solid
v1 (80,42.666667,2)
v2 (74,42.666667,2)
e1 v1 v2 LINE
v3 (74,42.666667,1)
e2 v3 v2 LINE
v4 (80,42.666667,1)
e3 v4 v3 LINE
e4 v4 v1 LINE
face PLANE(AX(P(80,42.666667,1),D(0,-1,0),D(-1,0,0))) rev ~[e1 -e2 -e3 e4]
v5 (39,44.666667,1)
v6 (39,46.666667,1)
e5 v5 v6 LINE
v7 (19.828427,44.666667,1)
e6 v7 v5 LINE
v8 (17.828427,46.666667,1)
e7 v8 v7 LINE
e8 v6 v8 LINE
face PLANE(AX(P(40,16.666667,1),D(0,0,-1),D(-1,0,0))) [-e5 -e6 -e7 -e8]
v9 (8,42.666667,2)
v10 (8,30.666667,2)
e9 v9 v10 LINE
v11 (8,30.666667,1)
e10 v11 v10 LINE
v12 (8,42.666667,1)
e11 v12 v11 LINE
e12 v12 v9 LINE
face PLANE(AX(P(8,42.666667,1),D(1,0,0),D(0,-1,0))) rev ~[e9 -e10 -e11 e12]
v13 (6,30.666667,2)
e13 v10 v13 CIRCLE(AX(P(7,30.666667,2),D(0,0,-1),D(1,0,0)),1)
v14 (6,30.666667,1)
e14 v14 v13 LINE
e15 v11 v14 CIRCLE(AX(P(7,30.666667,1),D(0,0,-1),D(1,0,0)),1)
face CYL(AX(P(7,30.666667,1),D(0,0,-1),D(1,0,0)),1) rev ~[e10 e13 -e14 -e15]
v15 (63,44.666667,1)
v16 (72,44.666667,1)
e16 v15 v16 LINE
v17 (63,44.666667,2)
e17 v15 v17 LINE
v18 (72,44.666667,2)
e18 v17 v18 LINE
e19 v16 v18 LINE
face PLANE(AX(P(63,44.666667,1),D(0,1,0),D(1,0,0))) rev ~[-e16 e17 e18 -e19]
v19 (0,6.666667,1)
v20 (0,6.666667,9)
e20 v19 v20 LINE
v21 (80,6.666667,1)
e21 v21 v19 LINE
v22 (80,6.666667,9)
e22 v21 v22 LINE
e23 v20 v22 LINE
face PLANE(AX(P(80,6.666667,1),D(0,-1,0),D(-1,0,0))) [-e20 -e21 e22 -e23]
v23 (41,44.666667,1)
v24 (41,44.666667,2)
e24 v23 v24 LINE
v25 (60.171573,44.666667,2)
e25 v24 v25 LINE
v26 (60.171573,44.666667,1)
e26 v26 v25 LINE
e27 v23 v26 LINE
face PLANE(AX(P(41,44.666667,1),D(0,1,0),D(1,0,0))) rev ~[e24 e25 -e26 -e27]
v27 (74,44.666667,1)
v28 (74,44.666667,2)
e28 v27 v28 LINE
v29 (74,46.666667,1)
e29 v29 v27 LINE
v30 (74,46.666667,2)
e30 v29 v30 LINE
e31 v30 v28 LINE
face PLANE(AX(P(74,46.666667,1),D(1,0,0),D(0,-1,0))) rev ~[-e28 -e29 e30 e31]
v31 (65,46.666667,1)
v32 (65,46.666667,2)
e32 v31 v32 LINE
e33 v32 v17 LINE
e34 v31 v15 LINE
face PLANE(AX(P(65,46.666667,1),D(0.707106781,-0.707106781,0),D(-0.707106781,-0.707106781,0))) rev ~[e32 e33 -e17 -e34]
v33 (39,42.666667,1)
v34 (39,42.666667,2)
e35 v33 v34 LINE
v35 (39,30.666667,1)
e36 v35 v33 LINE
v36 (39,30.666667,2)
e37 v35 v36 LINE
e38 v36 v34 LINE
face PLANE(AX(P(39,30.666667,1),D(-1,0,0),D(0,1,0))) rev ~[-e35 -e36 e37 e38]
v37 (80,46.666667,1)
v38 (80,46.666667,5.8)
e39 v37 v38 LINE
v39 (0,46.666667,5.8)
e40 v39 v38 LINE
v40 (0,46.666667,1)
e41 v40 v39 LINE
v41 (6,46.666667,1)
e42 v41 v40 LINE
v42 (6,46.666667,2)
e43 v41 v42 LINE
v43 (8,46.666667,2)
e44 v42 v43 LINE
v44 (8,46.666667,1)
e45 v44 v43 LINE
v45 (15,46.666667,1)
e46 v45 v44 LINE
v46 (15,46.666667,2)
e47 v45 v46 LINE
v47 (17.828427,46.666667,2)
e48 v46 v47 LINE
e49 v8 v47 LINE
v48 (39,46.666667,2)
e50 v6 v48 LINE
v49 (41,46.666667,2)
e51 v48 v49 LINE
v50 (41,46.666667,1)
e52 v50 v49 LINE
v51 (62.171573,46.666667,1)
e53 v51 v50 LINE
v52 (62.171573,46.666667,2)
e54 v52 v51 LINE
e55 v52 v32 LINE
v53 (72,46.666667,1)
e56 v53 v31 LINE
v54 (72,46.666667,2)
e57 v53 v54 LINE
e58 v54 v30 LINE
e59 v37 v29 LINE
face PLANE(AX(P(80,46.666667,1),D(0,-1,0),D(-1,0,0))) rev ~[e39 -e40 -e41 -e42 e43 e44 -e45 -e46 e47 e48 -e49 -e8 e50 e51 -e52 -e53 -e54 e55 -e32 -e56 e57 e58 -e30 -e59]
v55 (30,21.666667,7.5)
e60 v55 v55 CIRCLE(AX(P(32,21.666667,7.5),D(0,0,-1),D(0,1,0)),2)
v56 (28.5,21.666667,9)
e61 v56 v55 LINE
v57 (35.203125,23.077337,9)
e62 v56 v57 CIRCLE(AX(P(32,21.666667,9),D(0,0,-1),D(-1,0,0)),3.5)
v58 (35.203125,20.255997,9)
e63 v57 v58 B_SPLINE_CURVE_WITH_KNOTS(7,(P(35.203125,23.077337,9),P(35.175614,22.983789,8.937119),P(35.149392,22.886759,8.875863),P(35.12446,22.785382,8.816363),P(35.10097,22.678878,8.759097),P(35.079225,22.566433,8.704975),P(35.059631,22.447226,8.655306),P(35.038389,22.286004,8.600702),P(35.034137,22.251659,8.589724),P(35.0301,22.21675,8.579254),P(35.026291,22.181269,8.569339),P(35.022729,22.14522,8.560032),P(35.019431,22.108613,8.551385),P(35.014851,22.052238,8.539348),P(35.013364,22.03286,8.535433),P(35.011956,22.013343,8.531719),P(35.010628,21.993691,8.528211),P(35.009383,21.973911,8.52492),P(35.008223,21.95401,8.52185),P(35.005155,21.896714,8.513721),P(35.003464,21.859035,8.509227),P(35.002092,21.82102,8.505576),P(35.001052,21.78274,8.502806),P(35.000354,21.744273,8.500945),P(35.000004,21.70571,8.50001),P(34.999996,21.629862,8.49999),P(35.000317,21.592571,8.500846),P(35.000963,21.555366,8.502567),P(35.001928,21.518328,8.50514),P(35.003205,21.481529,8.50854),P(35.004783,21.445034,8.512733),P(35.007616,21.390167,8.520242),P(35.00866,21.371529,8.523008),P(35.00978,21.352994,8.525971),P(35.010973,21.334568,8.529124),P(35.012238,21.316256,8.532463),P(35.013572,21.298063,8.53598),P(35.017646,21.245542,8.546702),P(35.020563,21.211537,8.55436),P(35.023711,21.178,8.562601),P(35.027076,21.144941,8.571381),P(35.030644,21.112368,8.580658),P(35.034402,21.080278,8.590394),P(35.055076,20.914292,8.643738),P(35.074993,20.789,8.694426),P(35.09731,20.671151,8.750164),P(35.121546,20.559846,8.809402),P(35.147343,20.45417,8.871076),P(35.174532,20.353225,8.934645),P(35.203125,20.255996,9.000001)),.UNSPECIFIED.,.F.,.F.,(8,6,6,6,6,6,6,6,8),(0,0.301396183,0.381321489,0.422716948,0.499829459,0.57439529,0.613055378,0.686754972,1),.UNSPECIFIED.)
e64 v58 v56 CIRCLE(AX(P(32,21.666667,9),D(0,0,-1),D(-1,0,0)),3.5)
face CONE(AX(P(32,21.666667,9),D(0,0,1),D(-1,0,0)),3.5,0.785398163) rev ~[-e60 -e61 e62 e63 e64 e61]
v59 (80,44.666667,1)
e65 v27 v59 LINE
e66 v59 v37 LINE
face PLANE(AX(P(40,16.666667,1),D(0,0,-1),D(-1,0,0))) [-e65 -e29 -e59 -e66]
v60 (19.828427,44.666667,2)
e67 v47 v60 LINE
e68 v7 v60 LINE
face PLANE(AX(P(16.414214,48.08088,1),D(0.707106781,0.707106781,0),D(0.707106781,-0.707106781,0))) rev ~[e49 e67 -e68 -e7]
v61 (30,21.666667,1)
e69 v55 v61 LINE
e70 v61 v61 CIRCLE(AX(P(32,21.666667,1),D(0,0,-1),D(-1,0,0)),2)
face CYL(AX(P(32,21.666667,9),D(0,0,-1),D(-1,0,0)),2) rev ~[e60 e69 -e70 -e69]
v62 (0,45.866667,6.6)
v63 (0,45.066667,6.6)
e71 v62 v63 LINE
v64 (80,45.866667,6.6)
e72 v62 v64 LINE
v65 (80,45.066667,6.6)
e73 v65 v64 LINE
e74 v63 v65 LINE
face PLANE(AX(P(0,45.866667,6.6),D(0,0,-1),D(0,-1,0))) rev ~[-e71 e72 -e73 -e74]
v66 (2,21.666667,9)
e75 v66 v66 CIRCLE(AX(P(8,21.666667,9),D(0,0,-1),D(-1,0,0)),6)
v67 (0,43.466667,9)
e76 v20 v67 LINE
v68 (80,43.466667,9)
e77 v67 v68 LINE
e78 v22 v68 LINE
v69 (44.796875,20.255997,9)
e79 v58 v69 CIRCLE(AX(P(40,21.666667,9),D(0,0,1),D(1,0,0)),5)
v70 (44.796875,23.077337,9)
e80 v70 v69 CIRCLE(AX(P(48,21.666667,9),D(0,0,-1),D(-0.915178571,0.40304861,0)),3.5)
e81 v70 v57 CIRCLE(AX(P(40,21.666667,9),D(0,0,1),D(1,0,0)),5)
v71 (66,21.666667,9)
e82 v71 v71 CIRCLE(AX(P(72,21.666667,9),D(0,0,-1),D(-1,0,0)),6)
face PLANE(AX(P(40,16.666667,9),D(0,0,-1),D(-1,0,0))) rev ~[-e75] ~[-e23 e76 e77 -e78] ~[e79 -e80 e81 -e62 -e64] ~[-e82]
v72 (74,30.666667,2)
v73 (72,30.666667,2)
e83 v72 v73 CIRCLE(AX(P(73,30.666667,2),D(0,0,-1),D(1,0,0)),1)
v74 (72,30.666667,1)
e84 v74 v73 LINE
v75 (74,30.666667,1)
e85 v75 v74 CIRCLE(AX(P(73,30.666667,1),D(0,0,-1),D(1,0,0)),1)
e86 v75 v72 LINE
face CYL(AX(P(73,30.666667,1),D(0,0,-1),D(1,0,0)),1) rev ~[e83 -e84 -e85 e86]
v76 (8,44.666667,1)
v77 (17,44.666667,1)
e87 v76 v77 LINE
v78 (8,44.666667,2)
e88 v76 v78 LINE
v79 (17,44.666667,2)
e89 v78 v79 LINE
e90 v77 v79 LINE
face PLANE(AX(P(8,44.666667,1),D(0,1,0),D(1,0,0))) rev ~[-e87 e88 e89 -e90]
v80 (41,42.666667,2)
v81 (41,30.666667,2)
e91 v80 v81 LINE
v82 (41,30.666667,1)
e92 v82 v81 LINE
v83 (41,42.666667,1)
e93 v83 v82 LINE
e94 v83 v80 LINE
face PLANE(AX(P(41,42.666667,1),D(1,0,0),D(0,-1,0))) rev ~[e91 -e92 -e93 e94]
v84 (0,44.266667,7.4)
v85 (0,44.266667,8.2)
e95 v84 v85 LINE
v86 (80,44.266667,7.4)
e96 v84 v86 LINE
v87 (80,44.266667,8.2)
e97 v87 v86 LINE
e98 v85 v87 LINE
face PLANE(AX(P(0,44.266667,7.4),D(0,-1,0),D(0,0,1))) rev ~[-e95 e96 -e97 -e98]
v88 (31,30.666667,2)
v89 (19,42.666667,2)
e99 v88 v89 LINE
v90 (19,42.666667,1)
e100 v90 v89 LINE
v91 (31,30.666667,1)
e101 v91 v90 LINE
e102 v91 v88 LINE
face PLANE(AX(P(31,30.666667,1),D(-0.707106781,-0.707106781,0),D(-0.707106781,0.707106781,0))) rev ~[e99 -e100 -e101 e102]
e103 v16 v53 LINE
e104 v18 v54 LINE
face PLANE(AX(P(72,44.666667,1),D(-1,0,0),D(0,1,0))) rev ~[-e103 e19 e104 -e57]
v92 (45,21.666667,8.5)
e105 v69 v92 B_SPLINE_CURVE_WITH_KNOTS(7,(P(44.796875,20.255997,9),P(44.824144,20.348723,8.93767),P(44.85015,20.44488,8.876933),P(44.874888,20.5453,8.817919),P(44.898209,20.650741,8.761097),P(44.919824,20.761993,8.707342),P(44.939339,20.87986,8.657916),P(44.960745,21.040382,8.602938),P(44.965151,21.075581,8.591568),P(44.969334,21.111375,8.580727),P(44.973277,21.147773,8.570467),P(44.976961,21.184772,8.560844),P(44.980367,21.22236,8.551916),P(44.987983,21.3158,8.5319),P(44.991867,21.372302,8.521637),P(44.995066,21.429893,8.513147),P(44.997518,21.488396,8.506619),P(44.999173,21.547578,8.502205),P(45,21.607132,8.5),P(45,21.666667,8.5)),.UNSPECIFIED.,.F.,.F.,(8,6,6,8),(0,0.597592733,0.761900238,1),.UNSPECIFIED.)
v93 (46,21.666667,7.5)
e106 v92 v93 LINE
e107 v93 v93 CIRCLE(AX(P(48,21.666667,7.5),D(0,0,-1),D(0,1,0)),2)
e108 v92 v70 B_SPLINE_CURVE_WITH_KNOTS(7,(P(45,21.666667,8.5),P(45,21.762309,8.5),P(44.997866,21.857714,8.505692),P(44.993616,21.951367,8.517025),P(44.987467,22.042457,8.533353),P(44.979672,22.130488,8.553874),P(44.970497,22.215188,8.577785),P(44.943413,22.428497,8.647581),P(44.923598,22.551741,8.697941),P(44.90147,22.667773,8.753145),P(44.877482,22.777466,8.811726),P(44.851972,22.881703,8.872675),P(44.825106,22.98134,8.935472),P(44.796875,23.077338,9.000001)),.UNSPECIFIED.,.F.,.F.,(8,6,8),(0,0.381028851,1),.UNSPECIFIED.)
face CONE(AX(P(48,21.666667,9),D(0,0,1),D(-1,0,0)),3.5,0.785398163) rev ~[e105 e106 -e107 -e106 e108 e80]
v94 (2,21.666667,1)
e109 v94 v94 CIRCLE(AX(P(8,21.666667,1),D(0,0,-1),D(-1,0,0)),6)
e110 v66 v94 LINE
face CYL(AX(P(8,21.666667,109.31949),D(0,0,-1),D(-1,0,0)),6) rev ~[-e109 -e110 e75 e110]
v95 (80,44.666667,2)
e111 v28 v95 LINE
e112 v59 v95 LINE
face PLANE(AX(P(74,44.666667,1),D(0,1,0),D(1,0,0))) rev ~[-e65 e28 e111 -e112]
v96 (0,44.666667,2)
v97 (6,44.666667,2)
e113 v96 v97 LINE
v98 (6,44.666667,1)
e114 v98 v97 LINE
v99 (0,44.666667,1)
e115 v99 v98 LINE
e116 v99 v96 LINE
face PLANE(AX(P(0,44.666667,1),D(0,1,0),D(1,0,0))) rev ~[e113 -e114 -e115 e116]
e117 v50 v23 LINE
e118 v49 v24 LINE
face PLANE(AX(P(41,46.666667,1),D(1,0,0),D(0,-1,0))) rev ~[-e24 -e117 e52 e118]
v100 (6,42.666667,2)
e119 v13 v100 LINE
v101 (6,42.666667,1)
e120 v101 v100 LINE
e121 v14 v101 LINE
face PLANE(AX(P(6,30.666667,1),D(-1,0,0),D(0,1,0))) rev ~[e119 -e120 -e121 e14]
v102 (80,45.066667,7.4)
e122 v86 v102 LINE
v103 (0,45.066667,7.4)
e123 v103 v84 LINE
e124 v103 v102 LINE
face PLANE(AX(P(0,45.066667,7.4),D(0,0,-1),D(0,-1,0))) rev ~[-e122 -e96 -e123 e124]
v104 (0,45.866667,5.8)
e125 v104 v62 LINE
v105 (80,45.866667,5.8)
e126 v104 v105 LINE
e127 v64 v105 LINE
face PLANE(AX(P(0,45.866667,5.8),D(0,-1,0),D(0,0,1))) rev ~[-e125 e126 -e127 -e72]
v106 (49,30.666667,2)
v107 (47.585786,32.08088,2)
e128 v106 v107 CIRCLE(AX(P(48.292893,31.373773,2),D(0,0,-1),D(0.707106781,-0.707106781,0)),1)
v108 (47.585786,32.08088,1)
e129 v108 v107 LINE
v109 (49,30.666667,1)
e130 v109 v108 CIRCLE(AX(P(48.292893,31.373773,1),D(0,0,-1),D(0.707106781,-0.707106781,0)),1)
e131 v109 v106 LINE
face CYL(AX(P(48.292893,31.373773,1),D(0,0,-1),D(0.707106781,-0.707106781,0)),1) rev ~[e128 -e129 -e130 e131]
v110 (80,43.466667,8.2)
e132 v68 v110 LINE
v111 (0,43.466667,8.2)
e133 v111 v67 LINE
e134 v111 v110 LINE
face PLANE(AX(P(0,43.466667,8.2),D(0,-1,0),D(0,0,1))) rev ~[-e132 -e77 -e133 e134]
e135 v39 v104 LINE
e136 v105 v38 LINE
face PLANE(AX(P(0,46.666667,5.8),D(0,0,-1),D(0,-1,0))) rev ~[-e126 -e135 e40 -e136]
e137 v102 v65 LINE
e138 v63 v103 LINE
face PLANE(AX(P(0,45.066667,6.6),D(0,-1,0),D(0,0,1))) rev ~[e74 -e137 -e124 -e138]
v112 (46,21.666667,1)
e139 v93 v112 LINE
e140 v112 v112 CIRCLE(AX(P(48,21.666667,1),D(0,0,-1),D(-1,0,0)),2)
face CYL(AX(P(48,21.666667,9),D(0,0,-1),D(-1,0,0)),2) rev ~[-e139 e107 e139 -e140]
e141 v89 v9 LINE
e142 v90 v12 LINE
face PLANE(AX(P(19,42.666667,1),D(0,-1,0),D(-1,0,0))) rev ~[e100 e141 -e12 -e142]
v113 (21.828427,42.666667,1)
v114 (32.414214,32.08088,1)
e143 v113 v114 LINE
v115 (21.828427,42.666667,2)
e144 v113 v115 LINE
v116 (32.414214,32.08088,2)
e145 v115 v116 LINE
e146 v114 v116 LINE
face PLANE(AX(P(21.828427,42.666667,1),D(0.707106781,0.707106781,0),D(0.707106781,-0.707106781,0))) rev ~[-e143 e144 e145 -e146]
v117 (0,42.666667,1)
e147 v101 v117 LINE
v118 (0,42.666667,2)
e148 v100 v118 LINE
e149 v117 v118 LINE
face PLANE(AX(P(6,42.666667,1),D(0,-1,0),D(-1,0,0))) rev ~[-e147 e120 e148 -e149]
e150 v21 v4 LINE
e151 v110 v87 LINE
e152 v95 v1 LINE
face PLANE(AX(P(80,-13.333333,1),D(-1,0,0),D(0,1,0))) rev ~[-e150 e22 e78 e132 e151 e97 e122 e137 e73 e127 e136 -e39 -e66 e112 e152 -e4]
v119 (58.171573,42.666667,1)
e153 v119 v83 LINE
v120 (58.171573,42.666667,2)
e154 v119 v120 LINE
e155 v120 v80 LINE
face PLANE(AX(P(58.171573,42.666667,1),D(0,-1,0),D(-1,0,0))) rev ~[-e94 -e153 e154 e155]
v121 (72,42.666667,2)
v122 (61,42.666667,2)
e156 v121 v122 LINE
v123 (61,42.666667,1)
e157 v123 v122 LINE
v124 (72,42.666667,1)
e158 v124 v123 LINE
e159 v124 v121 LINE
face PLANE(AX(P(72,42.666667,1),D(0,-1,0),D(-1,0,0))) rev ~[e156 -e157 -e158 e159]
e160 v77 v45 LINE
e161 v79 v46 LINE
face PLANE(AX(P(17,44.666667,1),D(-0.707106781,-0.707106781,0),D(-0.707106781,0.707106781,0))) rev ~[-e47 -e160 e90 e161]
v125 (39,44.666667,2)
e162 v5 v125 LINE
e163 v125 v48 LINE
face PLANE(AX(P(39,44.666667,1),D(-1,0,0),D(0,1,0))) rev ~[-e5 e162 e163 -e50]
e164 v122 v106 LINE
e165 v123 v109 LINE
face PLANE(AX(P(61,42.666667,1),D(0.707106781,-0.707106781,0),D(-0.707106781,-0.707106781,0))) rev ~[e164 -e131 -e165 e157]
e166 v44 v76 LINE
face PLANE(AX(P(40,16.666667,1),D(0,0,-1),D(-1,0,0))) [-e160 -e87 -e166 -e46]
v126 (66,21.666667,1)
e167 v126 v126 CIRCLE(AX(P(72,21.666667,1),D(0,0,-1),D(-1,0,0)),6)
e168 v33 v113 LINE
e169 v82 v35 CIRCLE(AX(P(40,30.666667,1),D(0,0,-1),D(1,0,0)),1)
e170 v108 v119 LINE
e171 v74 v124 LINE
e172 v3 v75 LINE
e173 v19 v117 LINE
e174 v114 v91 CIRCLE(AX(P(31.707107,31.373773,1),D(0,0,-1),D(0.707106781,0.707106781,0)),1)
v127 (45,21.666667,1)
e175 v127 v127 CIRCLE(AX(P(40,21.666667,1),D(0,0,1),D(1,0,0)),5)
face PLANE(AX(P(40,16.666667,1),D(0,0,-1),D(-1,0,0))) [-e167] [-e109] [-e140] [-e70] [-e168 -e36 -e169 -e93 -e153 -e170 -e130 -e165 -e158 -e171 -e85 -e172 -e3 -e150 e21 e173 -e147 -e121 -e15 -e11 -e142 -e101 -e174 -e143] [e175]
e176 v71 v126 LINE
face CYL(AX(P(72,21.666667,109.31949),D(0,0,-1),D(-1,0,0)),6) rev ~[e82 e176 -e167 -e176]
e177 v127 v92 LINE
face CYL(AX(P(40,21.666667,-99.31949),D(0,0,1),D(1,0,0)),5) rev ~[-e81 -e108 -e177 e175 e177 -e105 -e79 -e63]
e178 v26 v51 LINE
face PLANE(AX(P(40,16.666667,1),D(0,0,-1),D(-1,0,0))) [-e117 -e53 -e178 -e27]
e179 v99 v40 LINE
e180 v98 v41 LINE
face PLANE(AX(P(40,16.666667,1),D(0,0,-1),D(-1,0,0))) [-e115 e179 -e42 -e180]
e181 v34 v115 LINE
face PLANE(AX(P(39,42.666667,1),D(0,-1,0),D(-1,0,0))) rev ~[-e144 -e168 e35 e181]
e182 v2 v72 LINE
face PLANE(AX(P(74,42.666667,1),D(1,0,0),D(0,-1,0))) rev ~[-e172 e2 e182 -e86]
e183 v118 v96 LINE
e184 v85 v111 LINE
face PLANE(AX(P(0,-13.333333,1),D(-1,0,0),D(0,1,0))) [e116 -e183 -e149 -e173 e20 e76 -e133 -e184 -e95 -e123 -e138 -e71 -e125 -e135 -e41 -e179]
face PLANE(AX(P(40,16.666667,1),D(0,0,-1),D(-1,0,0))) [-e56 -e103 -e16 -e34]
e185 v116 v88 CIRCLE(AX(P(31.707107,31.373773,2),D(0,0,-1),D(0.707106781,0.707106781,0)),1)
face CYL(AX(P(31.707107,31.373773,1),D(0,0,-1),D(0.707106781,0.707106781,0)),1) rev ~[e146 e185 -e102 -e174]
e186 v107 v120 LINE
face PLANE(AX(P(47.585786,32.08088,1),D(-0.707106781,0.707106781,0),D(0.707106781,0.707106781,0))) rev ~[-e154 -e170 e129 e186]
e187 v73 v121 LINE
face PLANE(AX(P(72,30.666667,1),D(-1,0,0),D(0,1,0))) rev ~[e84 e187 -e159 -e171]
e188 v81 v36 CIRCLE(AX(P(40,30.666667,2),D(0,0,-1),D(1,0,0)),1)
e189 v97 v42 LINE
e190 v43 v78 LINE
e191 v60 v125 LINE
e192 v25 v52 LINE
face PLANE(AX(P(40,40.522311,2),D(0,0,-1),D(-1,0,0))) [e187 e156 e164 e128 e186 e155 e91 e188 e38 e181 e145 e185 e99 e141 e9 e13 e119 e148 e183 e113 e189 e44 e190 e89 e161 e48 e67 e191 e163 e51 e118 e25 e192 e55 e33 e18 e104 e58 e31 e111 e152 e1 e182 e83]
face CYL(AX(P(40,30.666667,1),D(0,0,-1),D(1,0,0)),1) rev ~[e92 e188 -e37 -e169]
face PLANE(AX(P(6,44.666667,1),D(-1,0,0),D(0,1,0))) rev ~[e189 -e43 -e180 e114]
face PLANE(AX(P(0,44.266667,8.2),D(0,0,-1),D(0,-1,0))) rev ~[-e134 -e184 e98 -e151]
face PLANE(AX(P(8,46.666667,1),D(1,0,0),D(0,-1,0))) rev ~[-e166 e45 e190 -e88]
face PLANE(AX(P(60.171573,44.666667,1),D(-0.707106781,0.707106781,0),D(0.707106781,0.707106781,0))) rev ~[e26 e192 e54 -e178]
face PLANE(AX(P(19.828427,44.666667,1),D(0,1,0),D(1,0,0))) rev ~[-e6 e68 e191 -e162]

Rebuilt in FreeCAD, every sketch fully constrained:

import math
import FreeCAD as App
import Part
import Sketcher

V = App.Vector
Q = App.Units.Quantity

doc = App.newDocument("Part")
body = doc.addObject("PartDesign::Body", "Body")

# Sketch on XY plane
sketch1 = doc.addObject("Sketcher::SketchObject", "Sketch")
body.addObject(sketch1)
sketch1.AttachmentSupport = (doc.XY_Plane, [""])
sketch1.MapMode = "FlatFace"
sketch1.AttachmentOffset = App.Placement(V(0, 0, 1), App.Rotation())
sketch1.addGeometry(Part.LineSegment(V(80, 47, 0), V(80, -13, 0)), False)
sketch1.addGeometry(Part.LineSegment(V(80, -13, 0), V(0, -13, 0)), False)
sketch1.addGeometry(Part.LineSegment(V(0, -13, 0), V(0, 47, 0)), False)
sketch1.addGeometry(Part.LineSegment(V(0, 47, 0), V(80, 47, 0)), False)
sketch1.addConstraint(Sketcher.Constraint("Coincident", 0, 2, 1, 1))
sketch1.addConstraint(Sketcher.Constraint("Coincident", 1, 2, 2, 1))
sketch1.addConstraint(Sketcher.Constraint("Coincident", 2, 2, 3, 1))
sketch1.addConstraint(Sketcher.Constraint("Coincident", 3, 2, 0, 1))
sketch1.addConstraint(Sketcher.Constraint("Vertical", 0))
sketch1.addConstraint(Sketcher.Constraint("Horizontal", 1))
sketch1.addConstraint(Sketcher.Constraint("Vertical", 2))
sketch1.addConstraint(Sketcher.Constraint("Horizontal", 3))
sketch1.addConstraint(Sketcher.Constraint("PointOnObject", 1, 2, -2))
sketch1.addConstraint(Sketcher.Constraint("DistanceX", 1, 2, 1, 1, Q("80 mm")))
sketch1.addConstraint(Sketcher.Constraint("DistanceY", 0, 2, 0, 1, Q("60 mm")))
sketch1.addConstraint(Sketcher.Constraint("DistanceY", 0, 2, -1, 1, Q("13.333333 mm")))
pad1 = doc.addObject("PartDesign::Pad", "Pad")
body.addObject(pad1)
pad1.Profile = sketch1
pad1.Length = 8

# Sketch on XY plane
sketch2 = doc.addObject("Sketcher::SketchObject", "Sketch001")
body.addObject(sketch2)
sketch2.AttachmentSupport = (doc.XY_Plane, [""])
sketch2.MapMode = "FlatFace"
sketch2.AttachmentOffset = App.Placement(V(0, 0, 9), App.Rotation())
sketch2.addGeometry(Part.Circle(V(72, 22, 0), V(0, 0, 1), 6), False)
sketch2.addGeometry(Part.Circle(V(8, 22, 0), V(0, 0, 1), 6), False)
sketch2.addConstraint(Sketcher.Constraint("Equal", 0, 1))
sketch2.addConstraint(Sketcher.Constraint("Horizontal", 0, 3, 1, 3))
sketch2.addConstraint(Sketcher.Constraint("Diameter", 0, Q("12 mm")))
sketch2.addConstraint(Sketcher.Constraint("DistanceX", -1, 1, 0, 3, Q("72 mm")))
sketch2.addConstraint(Sketcher.Constraint("DistanceX", -1, 1, 1, 3, Q("8 mm")))
sketch2.addConstraint(Sketcher.Constraint("DistanceY", -1, 1, 0, 3, Q("21.666667 mm")))
doc.recompute()
hole = doc.addObject("PartDesign::Hole", "Hole")
body.addObject(hole)
hole.Profile = sketch2
hole.ThreadType = "None"
hole.Diameter = 12
hole.DepthType = "ThroughAll"

# Sketch on XY plane
sketch3 = doc.addObject("Sketcher::SketchObject", "Sketch002")
body.addObject(sketch3)
sketch3.AttachmentSupport = (doc.XY_Plane, [""])
sketch3.MapMode = "FlatFace"
sketch3.AttachmentOffset = App.Placement(V(0, 0, 1), App.Rotation())
sketch3.addGeometry(Part.Circle(V(40, 22, 0), V(0, 0, 1), 5), False)
sketch3.addConstraint(Sketcher.Constraint("Diameter", 0, Q("10 mm")))
sketch3.addConstraint(Sketcher.Constraint("DistanceX", -1, 1, 0, 3, Q("40 mm")))
sketch3.addConstraint(Sketcher.Constraint("DistanceY", -1, 1, 0, 3, Q("21.666667 mm")))
doc.recompute()
hole2 = doc.addObject("PartDesign::Hole", "Hole001")
body.addObject(hole2)
hole2.Profile = sketch3
hole2.ThreadType = "None"
hole2.Diameter = 10
hole2.DepthType = "ThroughAll"
hole2.Reversed = True

# Sketch on XY plane
sketch4 = doc.addObject("Sketcher::SketchObject", "Sketch003")
body.addObject(sketch4)
sketch4.AttachmentSupport = (doc.XY_Plane, [""])
sketch4.MapMode = "FlatFace"
sketch4.AttachmentOffset = App.Placement(V(0, 0, 9), App.Rotation())
sketch4.addGeometry(Part.Circle(V(32, 21.7, 0), V(0, 0, 1), 2), False)
sketch4.addGeometry(Part.Circle(V(48, 21.7, 0), V(0, 0, 1), 2), False)
sketch4.addConstraint(Sketcher.Constraint("Equal", 0, 1))
sketch4.addConstraint(Sketcher.Constraint("Horizontal", 0, 3, 1, 3))
sketch4.addConstraint(Sketcher.Constraint("Diameter", 0, Q("4 mm")))
sketch4.addConstraint(Sketcher.Constraint("DistanceX", -1, 1, 0, 3, Q("32 mm")))
sketch4.addConstraint(Sketcher.Constraint("DistanceX", -1, 1, 1, 3, Q("48 mm")))
sketch4.addConstraint(Sketcher.Constraint("DistanceY", -1, 1, 0, 3, Q("21.666667 mm")))
doc.recompute()
hole3 = doc.addObject("PartDesign::Hole", "Hole002")
body.addObject(hole3)
hole3.Profile = sketch4
hole3.ThreadType = "None"
hole3.Diameter = 4
hole3.DepthType = "ThroughAll"
hole3.HoleCutType = "Countersink"
hole3.HoleCutDiameter = 7
hole3.HoleCutCountersinkAngle = 90

# Sketch on XY plane
sketch5 = doc.addObject("Sketcher::SketchObject", "Sketch004")
body.addObject(sketch5)
sketch5.AttachmentSupport = (doc.XY_Plane, [""])
sketch5.MapMode = "FlatFace"
sketch5.AttachmentOffset = App.Placement(V(0, 0, 1), App.Rotation())
sketch5.addGeometry(Part.ArcOfCircle(Part.Circle(V(40, 30.7, 0), V(0, 0, 1), 1), math.radians(180), math.radians(360)), False)
sketch5.addGeometry(Part.LineSegment(V(39, 30.7, 0), V(39, 42.7, 0)), False)
sketch5.addGeometry(Part.LineSegment(V(39, 42.7, 0), V(21.8, 42.7, 0)), False)
sketch5.addGeometry(Part.LineSegment(V(21.8, 42.7, 0), V(32.4, 32.1, 0)), False)
sketch5.addGeometry(Part.ArcOfCircle(Part.Circle(V(31.7, 31.4, 0), V(0, 0, 1), 1), math.radians(-135), math.radians(45)), False)
sketch5.addGeometry(Part.LineSegment(V(31, 30.7, 0), V(19, 42.7, 0)), False)
sketch5.addGeometry(Part.LineSegment(V(19, 42.7, 0), V(8, 42.7, 0)), False)
sketch5.addGeometry(Part.LineSegment(V(8, 42.7, 0), V(8, 30.7, 0)), False)
sketch5.addGeometry(Part.ArcOfCircle(Part.Circle(V(7, 30.7, 0), V(0, 0, 1), 1), math.radians(180), math.radians(360)), False)
sketch5.addGeometry(Part.LineSegment(V(6, 30.7, 0), V(6, 42.7, 0)), False)
sketch5.addGeometry(Part.LineSegment(V(6, 42.7, 0), V(0, 42.7, 0)), False)
sketch5.addGeometry(Part.LineSegment(V(0, 42.7, 0), V(0, 44.7, 0)), False)
sketch5.addGeometry(Part.LineSegment(V(0, 44.7, 0), V(6, 44.7, 0)), False)
sketch5.addGeometry(Part.LineSegment(V(6, 44.7, 0), V(6, 46.7, 0)), False)
sketch5.addGeometry(Part.LineSegment(V(6, 46.7, 0), V(8, 46.7, 0)), False)
sketch5.addGeometry(Part.LineSegment(V(8, 46.7, 0), V(8, 44.7, 0)), False)
sketch5.addGeometry(Part.LineSegment(V(8, 44.7, 0), V(17, 44.7, 0)), False)
sketch5.addGeometry(Part.LineSegment(V(17, 44.7, 0), V(15, 46.7, 0)), False)
sketch5.addGeometry(Part.LineSegment(V(15, 46.7, 0), V(16.4, 48.1, 0)), False)
sketch5.addGeometry(Part.LineSegment(V(16.4, 48.1, 0), V(19.8, 44.7, 0)), False)
sketch5.addGeometry(Part.LineSegment(V(19.8, 44.7, 0), V(39, 44.7, 0)), False)
sketch5.addGeometry(Part.LineSegment(V(39, 44.7, 0), V(39, 46.7, 0)), False)
sketch5.addGeometry(Part.LineSegment(V(39, 46.7, 0), V(41, 46.7, 0)), False)
sketch5.addGeometry(Part.LineSegment(V(41, 46.7, 0), V(41, 44.7, 0)), False)
sketch5.addGeometry(Part.LineSegment(V(41, 44.7, 0), V(60.2, 44.7, 0)), False)
sketch5.addGeometry(Part.LineSegment(V(60.2, 44.7, 0), V(63.6, 48.1, 0)), False)
sketch5.addGeometry(Part.LineSegment(V(63.6, 48.1, 0), V(65, 46.7, 0)), False)
sketch5.addGeometry(Part.LineSegment(V(65, 46.7, 0), V(63, 44.7, 0)), False)
sketch5.addGeometry(Part.LineSegment(V(63, 44.7, 0), V(72, 44.7, 0)), False)
sketch5.addGeometry(Part.LineSegment(V(72, 44.7, 0), V(72, 46.7, 0)), False)
sketch5.addGeometry(Part.LineSegment(V(72, 46.7, 0), V(74, 46.7, 0)), False)
sketch5.addGeometry(Part.LineSegment(V(74, 46.7, 0), V(74, 44.7, 0)), False)
sketch5.addGeometry(Part.LineSegment(V(74, 44.7, 0), V(80, 44.7, 0)), False)
sketch5.addGeometry(Part.LineSegment(V(80, 44.7, 0), V(80, 42.7, 0)), False)
sketch5.addGeometry(Part.LineSegment(V(80, 42.7, 0), V(74, 42.7, 0)), False)
sketch5.addGeometry(Part.LineSegment(V(74, 42.7, 0), V(74, 30.7, 0)), False)
sketch5.addGeometry(Part.ArcOfCircle(Part.Circle(V(73, 30.7, 0), V(0, 0, 1), 1), math.radians(180), math.radians(360)), False)
sketch5.addGeometry(Part.LineSegment(V(72, 30.7, 0), V(72, 42.7, 0)), False)
sketch5.addGeometry(Part.LineSegment(V(72, 42.7, 0), V(61, 42.7, 0)), False)
sketch5.addGeometry(Part.LineSegment(V(61, 42.7, 0), V(49, 30.7, 0)), False)
sketch5.addGeometry(Part.ArcOfCircle(Part.Circle(V(48.3, 31.4, 0), V(0, 0, 1), 1), math.radians(135), math.radians(315)), False)
sketch5.addGeometry(Part.LineSegment(V(47.6, 32.1, 0), V(58.2, 42.7, 0)), False)
sketch5.addGeometry(Part.LineSegment(V(58.2, 42.7, 0), V(41, 42.7, 0)), False)
sketch5.addGeometry(Part.LineSegment(V(41, 42.7, 0), V(41, 30.7, 0)), False)
sketch5.addConstraint(Sketcher.Constraint("Tangent", 0, 1, 1, 1))
sketch5.addConstraint(Sketcher.Constraint("Coincident", 1, 2, 2, 1))
sketch5.addConstraint(Sketcher.Constraint("Coincident", 2, 2, 3, 1))
sketch5.addConstraint(Sketcher.Constraint("Tangent", 3, 2, 4, 2))
sketch5.addConstraint(Sketcher.Constraint("Tangent", 4, 1, 5, 1))
sketch5.addConstraint(Sketcher.Constraint("Coincident", 5, 2, 6, 1))
sketch5.addConstraint(Sketcher.Constraint("Coincident", 6, 2, 7, 1))
sketch5.addConstraint(Sketcher.Constraint("Tangent", 7, 2, 8, 2))
sketch5.addConstraint(Sketcher.Constraint("Tangent", 8, 1, 9, 1))
sketch5.addConstraint(Sketcher.Constraint("Coincident", 9, 2, 10, 1))
sketch5.addConstraint(Sketcher.Constraint("Coincident", 10, 2, 11, 1))
sketch5.addConstraint(Sketcher.Constraint("Coincident", 11, 2, 12, 1))
sketch5.addConstraint(Sketcher.Constraint("Coincident", 12, 2, 13, 1))
sketch5.addConstraint(Sketcher.Constraint("Coincident", 13, 2, 14, 1))
sketch5.addConstraint(Sketcher.Constraint("Coincident", 14, 2, 15, 1))
sketch5.addConstraint(Sketcher.Constraint("Coincident", 15, 2, 16, 1))
sketch5.addConstraint(Sketcher.Constraint("Coincident", 16, 2, 17, 1))
sketch5.addConstraint(Sketcher.Constraint("Coincident", 17, 2, 18, 1))
sketch5.addConstraint(Sketcher.Constraint("Coincident", 18, 2, 19, 1))
sketch5.addConstraint(Sketcher.Constraint("Coincident", 19, 2, 20, 1))
sketch5.addConstraint(Sketcher.Constraint("Coincident", 20, 2, 21, 1))
sketch5.addConstraint(Sketcher.Constraint("Coincident", 21, 2, 22, 1))
sketch5.addConstraint(Sketcher.Constraint("Coincident", 22, 2, 23, 1))
sketch5.addConstraint(Sketcher.Constraint("Coincident", 23, 2, 24, 1))
sketch5.addConstraint(Sketcher.Constraint("Coincident", 24, 2, 25, 1))
sketch5.addConstraint(Sketcher.Constraint("Coincident", 25, 2, 26, 1))
sketch5.addConstraint(Sketcher.Constraint("Coincident", 26, 2, 27, 1))
sketch5.addConstraint(Sketcher.Constraint("Coincident", 27, 2, 28, 1))
sketch5.addConstraint(Sketcher.Constraint("Coincident", 28, 2, 29, 1))
sketch5.addConstraint(Sketcher.Constraint("Coincident", 29, 2, 30, 1))
sketch5.addConstraint(Sketcher.Constraint("Coincident", 30, 2, 31, 1))
sketch5.addConstraint(Sketcher.Constraint("Coincident", 31, 2, 32, 1))
sketch5.addConstraint(Sketcher.Constraint("Coincident", 32, 2, 33, 1))
sketch5.addConstraint(Sketcher.Constraint("Coincident", 33, 2, 34, 1))
sketch5.addConstraint(Sketcher.Constraint("Coincident", 34, 2, 35, 1))
sketch5.addConstraint(Sketcher.Constraint("Tangent", 35, 2, 36, 2))
sketch5.addConstraint(Sketcher.Constraint("Tangent", 36, 1, 37, 1))
sketch5.addConstraint(Sketcher.Constraint("Coincident", 37, 2, 38, 1))
sketch5.addConstraint(Sketcher.Constraint("Coincident", 38, 2, 39, 1))
sketch5.addConstraint(Sketcher.Constraint("Tangent", 39, 2, 40, 2))
sketch5.addConstraint(Sketcher.Constraint("Tangent", 40, 1, 41, 1))
sketch5.addConstraint(Sketcher.Constraint("Coincident", 41, 2, 42, 1))
sketch5.addConstraint(Sketcher.Constraint("Coincident", 42, 2, 43, 1))
sketch5.addConstraint(Sketcher.Constraint("Tangent", 43, 2, 0, 2))
sketch5.addConstraint(Sketcher.Constraint("Vertical", 1))
sketch5.addConstraint(Sketcher.Constraint("Horizontal", 2))
sketch5.addConstraint(Sketcher.Constraint("Horizontal", 6))
sketch5.addConstraint(Sketcher.Constraint("Vertical", 7))
sketch5.addConstraint(Sketcher.Constraint("Vertical", 9))
sketch5.addConstraint(Sketcher.Constraint("Horizontal", 10))
sketch5.addConstraint(Sketcher.Constraint("Vertical", 11))
sketch5.addConstraint(Sketcher.Constraint("Horizontal", 12))
sketch5.addConstraint(Sketcher.Constraint("Vertical", 13))
sketch5.addConstraint(Sketcher.Constraint("Horizontal", 14))
sketch5.addConstraint(Sketcher.Constraint("Vertical", 15))
sketch5.addConstraint(Sketcher.Constraint("Horizontal", 16))
sketch5.addConstraint(Sketcher.Constraint("Horizontal", 20))
sketch5.addConstraint(Sketcher.Constraint("Vertical", 21))
sketch5.addConstraint(Sketcher.Constraint("Horizontal", 22))
sketch5.addConstraint(Sketcher.Constraint("Vertical", 23))
sketch5.addConstraint(Sketcher.Constraint("Horizontal", 24))
sketch5.addConstraint(Sketcher.Constraint("Horizontal", 28))
sketch5.addConstraint(Sketcher.Constraint("Vertical", 29))
sketch5.addConstraint(Sketcher.Constraint("Horizontal", 30))
sketch5.addConstraint(Sketcher.Constraint("Vertical", 31))
sketch5.addConstraint(Sketcher.Constraint("Horizontal", 32))
sketch5.addConstraint(Sketcher.Constraint("Vertical", 33))
sketch5.addConstraint(Sketcher.Constraint("Horizontal", 34))
sketch5.addConstraint(Sketcher.Constraint("Vertical", 35))
sketch5.addConstraint(Sketcher.Constraint("Vertical", 37))
sketch5.addConstraint(Sketcher.Constraint("Horizontal", 38))
sketch5.addConstraint(Sketcher.Constraint("Horizontal", 42))
sketch5.addConstraint(Sketcher.Constraint("Vertical", 43))
sketch5.addConstraint(Sketcher.Constraint("Equal", 0, 4))
sketch5.addConstraint(Sketcher.Constraint("Equal", 4, 8))
sketch5.addConstraint(Sketcher.Constraint("Equal", 8, 36))
sketch5.addConstraint(Sketcher.Constraint("Equal", 36, 40))
sketch5.addConstraint(Sketcher.Constraint("PointOnObject", 10, 2, -2))
sketch5.addConstraint(Sketcher.Constraint("Parallel", 3, 5))
sketch5.addConstraint(Sketcher.Constraint("Parallel", 5, 17))
sketch5.addConstraint(Sketcher.Constraint("Perpendicular", 17, 18))
sketch5.addConstraint(Sketcher.Constraint("Perpendicular", 18, 19))
sketch5.addConstraint(Sketcher.Constraint("Perpendicular", 19, 25))
sketch5.addConstraint(Sketcher.Constraint("Perpendicular", 25, 26))
sketch5.addConstraint(Sketcher.Constraint("Perpendicular", 26, 27))
sketch5.addConstraint(Sketcher.Constraint("Parallel", 27, 39))
sketch5.addConstraint(Sketcher.Constraint("Parallel", 39, 41))
sketch5.addConstraint(Sketcher.Constraint("Horizontal", 0, 3, 8, 3))
sketch5.addConstraint(Sketcher.Constraint("Horizontal", 8, 3, 36, 3))
sketch5.addConstraint(Sketcher.Constraint("Horizontal", 4, 3, 40, 3))
sketch5.addConstraint(Sketcher.Constraint("Horizontal", 0, 1, 4, 1))
sketch5.addConstraint(Sketcher.Constraint("Horizontal", 2, 2, 5, 2))
sketch5.addConstraint(Sketcher.Constraint("Horizontal", 6, 2, 9, 2))
sketch5.addConstraint(Sketcher.Constraint("Horizontal", 12, 2, 15, 2))
sketch5.addConstraint(Sketcher.Constraint("Horizontal", 14, 2, 17, 2))
sketch5.addConstraint(Sketcher.Constraint("Horizontal", 16, 2, 19, 2))
sketch5.addConstraint(Sketcher.Constraint("Horizontal", 17, 2, 21, 2))
sketch5.addConstraint(Sketcher.Constraint("Horizontal", 20, 2, 23, 2))
sketch5.addConstraint(Sketcher.Constraint("Horizontal", 18, 2, 25, 2))
sketch5.addConstraint(Sketcher.Constraint("Horizontal", 22, 2, 26, 2))
sketch5.addConstraint(Sketcher.Constraint("Horizontal", 24, 2, 27, 2))
sketch5.addConstraint(Sketcher.Constraint("Horizontal", 26, 2, 29, 2))
sketch5.addConstraint(Sketcher.Constraint("Horizontal", 28, 2, 31, 2))
sketch5.addConstraint(Sketcher.Constraint("Horizontal", 10, 2, 33, 2))
sketch5.addConstraint(Sketcher.Constraint("Horizontal", 34, 2, 37, 2))
sketch5.addConstraint(Sketcher.Constraint("Horizontal", 36, 1, 39, 2))
sketch5.addConstraint(Sketcher.Constraint("Horizontal", 38, 2, 41, 2))
sketch5.addConstraint(Sketcher.Constraint("Vertical", 9, 2, 12, 2))
sketch5.addConstraint(Sketcher.Constraint("Vertical", 7, 2, 14, 2))
sketch5.addConstraint(Sketcher.Constraint("Vertical", 1, 2, 20, 2))
sketch5.addConstraint(Sketcher.Constraint("Vertical", 31, 2, 34, 2))
sketch5.addConstraint(Sketcher.Constraint("Vertical", 29, 2, 36, 1))
sketch5.addConstraint(Sketcher.Constraint("Vertical", 23, 2, 42, 2))
sketch5.addConstraint(Sketcher.Constraint("Equal", 20, 24))
sketch5.addConstraint(Sketcher.Constraint("Equal", 16, 28))
sketch5.addConstraint(Sketcher.Constraint("Equal", 12, 32))
sketch5.addConstraint(Sketcher.Constraint("Equal", 6, 38))
sketch5.addConstraint(Sketcher.Constraint("Equal", 30, 11))
sketch5.addConstraint(Sketcher.Constraint("Equal", 11, 13))
sketch5.addConstraint(Sketcher.Constraint("Radius", 0, Q("1 mm")))
sketch5.addConstraint(Sketcher.Constraint("DistanceX", 6, 2, 6, 1, Q("11 mm")))
sketch5.addConstraint(Sketcher.Constraint("DistanceX", 10, 2, 10, 1, Q("6 mm")))
sketch5.addConstraint(Sketcher.Constraint("DistanceX", 16, 1, 16, 2, Q("9 mm")))
sketch5.addConstraint(Sketcher.Constraint("DistanceY", 1, 1, 1, 2, Q("12 mm")))
sketch5.addConstraint(Sketcher.Constraint("Distance", 18, Q("2 mm")))
sketch5.addConstraint(Sketcher.Constraint("DistanceX", -1, 1, 0, 3, Q("40 mm")))
sketch5.addConstraint(Sketcher.Constraint("DistanceY", -1, 1, 3, 2, Q("32.08088 mm")))
pocket1 = doc.addObject("PartDesign::Pocket", "Pocket")
body.addObject(pocket1)
pocket1.Profile = sketch5
pocket1.Length = 1
pocket1.Reversed = True

# Sketch on YZ plane
sketch6 = doc.addObject("Sketcher::SketchObject", "Sketch005")
body.addObject(sketch6)
sketch6.AttachmentSupport = (doc.YZ_Plane, [""])
sketch6.MapMode = "FlatFace"
sketch6.addGeometry(Part.LineSegment(V(46.7, 9, 0), V(46.7, 5.8, 0)), False)
sketch6.addGeometry(Part.LineSegment(V(46.7, 5.8, 0), V(45.9, 5.8, 0)), False)
sketch6.addGeometry(Part.LineSegment(V(45.9, 5.8, 0), V(45.9, 6.6, 0)), False)
sketch6.addGeometry(Part.LineSegment(V(45.9, 6.6, 0), V(45.1, 6.6, 0)), False)
sketch6.addGeometry(Part.LineSegment(V(45.1, 6.6, 0), V(45.1, 7.4, 0)), False)
sketch6.addGeometry(Part.LineSegment(V(45.1, 7.4, 0), V(44.3, 7.4, 0)), False)
sketch6.addGeometry(Part.LineSegment(V(44.3, 7.4, 0), V(44.3, 8.2, 0)), False)
sketch6.addGeometry(Part.LineSegment(V(44.3, 8.2, 0), V(43.5, 8.2, 0)), False)
sketch6.addGeometry(Part.LineSegment(V(43.5, 8.2, 0), V(43.5, 9, 0)), False)
sketch6.addGeometry(Part.LineSegment(V(43.5, 9, 0), V(46.7, 9, 0)), False)
sketch6.addConstraint(Sketcher.Constraint("Coincident", 0, 2, 1, 1))
sketch6.addConstraint(Sketcher.Constraint("Coincident", 1, 2, 2, 1))
sketch6.addConstraint(Sketcher.Constraint("Coincident", 2, 2, 3, 1))
sketch6.addConstraint(Sketcher.Constraint("Coincident", 3, 2, 4, 1))
sketch6.addConstraint(Sketcher.Constraint("Coincident", 4, 2, 5, 1))
sketch6.addConstraint(Sketcher.Constraint("Coincident", 5, 2, 6, 1))
sketch6.addConstraint(Sketcher.Constraint("Coincident", 6, 2, 7, 1))
sketch6.addConstraint(Sketcher.Constraint("Coincident", 7, 2, 8, 1))
sketch6.addConstraint(Sketcher.Constraint("Coincident", 8, 2, 9, 1))
sketch6.addConstraint(Sketcher.Constraint("Coincident", 9, 2, 0, 1))
sketch6.addConstraint(Sketcher.Constraint("Vertical", 0))
sketch6.addConstraint(Sketcher.Constraint("Horizontal", 1))
sketch6.addConstraint(Sketcher.Constraint("Vertical", 2))
sketch6.addConstraint(Sketcher.Constraint("Horizontal", 3))
sketch6.addConstraint(Sketcher.Constraint("Vertical", 4))
sketch6.addConstraint(Sketcher.Constraint("Horizontal", 5))
sketch6.addConstraint(Sketcher.Constraint("Vertical", 6))
sketch6.addConstraint(Sketcher.Constraint("Horizontal", 7))
sketch6.addConstraint(Sketcher.Constraint("Vertical", 8))
sketch6.addConstraint(Sketcher.Constraint("Horizontal", 9))
sketch6.addConstraint(Sketcher.Constraint("Equal", 1, 3))
sketch6.addConstraint(Sketcher.Constraint("Equal", 3, 5))
sketch6.addConstraint(Sketcher.Constraint("Equal", 5, 7))
sketch6.addConstraint(Sketcher.Constraint("Equal", 9, 0))
sketch6.addConstraint(Sketcher.Constraint("Equal", 7, 2))
sketch6.addConstraint(Sketcher.Constraint("Equal", 2, 4))
sketch6.addConstraint(Sketcher.Constraint("Equal", 4, 6))
sketch6.addConstraint(Sketcher.Constraint("DistanceX", 1, 2, 1, 1, Q("0.8 mm")))
sketch6.addConstraint(Sketcher.Constraint("DistanceY", -1, 1, 8, 2, Q("9 mm")))
sketch6.addConstraint(Sketcher.Constraint("DistanceX", -1, 1, 0, 2, Q("46.666667 mm")))
pocket2 = doc.addObject("PartDesign::Pocket", "Pocket001")
body.addObject(pocket2)
pocket2.Profile = sketch6
pocket2.Type = "UpToFirst"
pocket2.Reversed = True

# Sketch on XY plane
sketch7 = doc.addObject("Sketcher::SketchObject", "Sketch006")
body.addObject(sketch7)
sketch7.AttachmentSupport = (doc.XY_Plane, [""])
sketch7.MapMode = "FlatFace"
sketch7.AttachmentOffset = App.Placement(V(0, 0, 1), App.Rotation())
sketch7.addGeometry(Part.LineSegment(V(80, 7, 0), V(80, -13, 0)), False)
sketch7.addGeometry(Part.LineSegment(V(80, -13, 0), V(0, -13, 0)), False)
sketch7.addGeometry(Part.LineSegment(V(0, -13, 0), V(0, 7, 0)), False)
sketch7.addGeometry(Part.LineSegment(V(0, 7, 0), V(80, 7, 0)), False)
sketch7.addConstraint(Sketcher.Constraint("Coincident", 0, 2, 1, 1))
sketch7.addConstraint(Sketcher.Constraint("Coincident", 1, 2, 2, 1))
sketch7.addConstraint(Sketcher.Constraint("Coincident", 2, 2, 3, 1))
sketch7.addConstraint(Sketcher.Constraint("Coincident", 3, 2, 0, 1))
sketch7.addConstraint(Sketcher.Constraint("Vertical", 0))
sketch7.addConstraint(Sketcher.Constraint("Horizontal", 1))
sketch7.addConstraint(Sketcher.Constraint("Vertical", 2))
sketch7.addConstraint(Sketcher.Constraint("Horizontal", 3))
sketch7.addConstraint(Sketcher.Constraint("PointOnObject", 1, 2, -2))
sketch7.addConstraint(Sketcher.Constraint("DistanceX", 1, 2, 1, 1, Q("80 mm")))
sketch7.addConstraint(Sketcher.Constraint("DistanceY", 0, 2, 0, 1, Q("20 mm")))
sketch7.addConstraint(Sketcher.Constraint("DistanceY", 0, 2, -1, 1, Q("13.333333 mm")))
pocket3 = doc.addObject("PartDesign::Pocket", "Pocket002")
body.addObject(pocket3)
pocket3.Profile = sketch7
pocket3.Type = "UpToFirst"
pocket3.Reversed = True

doc.recompute()
